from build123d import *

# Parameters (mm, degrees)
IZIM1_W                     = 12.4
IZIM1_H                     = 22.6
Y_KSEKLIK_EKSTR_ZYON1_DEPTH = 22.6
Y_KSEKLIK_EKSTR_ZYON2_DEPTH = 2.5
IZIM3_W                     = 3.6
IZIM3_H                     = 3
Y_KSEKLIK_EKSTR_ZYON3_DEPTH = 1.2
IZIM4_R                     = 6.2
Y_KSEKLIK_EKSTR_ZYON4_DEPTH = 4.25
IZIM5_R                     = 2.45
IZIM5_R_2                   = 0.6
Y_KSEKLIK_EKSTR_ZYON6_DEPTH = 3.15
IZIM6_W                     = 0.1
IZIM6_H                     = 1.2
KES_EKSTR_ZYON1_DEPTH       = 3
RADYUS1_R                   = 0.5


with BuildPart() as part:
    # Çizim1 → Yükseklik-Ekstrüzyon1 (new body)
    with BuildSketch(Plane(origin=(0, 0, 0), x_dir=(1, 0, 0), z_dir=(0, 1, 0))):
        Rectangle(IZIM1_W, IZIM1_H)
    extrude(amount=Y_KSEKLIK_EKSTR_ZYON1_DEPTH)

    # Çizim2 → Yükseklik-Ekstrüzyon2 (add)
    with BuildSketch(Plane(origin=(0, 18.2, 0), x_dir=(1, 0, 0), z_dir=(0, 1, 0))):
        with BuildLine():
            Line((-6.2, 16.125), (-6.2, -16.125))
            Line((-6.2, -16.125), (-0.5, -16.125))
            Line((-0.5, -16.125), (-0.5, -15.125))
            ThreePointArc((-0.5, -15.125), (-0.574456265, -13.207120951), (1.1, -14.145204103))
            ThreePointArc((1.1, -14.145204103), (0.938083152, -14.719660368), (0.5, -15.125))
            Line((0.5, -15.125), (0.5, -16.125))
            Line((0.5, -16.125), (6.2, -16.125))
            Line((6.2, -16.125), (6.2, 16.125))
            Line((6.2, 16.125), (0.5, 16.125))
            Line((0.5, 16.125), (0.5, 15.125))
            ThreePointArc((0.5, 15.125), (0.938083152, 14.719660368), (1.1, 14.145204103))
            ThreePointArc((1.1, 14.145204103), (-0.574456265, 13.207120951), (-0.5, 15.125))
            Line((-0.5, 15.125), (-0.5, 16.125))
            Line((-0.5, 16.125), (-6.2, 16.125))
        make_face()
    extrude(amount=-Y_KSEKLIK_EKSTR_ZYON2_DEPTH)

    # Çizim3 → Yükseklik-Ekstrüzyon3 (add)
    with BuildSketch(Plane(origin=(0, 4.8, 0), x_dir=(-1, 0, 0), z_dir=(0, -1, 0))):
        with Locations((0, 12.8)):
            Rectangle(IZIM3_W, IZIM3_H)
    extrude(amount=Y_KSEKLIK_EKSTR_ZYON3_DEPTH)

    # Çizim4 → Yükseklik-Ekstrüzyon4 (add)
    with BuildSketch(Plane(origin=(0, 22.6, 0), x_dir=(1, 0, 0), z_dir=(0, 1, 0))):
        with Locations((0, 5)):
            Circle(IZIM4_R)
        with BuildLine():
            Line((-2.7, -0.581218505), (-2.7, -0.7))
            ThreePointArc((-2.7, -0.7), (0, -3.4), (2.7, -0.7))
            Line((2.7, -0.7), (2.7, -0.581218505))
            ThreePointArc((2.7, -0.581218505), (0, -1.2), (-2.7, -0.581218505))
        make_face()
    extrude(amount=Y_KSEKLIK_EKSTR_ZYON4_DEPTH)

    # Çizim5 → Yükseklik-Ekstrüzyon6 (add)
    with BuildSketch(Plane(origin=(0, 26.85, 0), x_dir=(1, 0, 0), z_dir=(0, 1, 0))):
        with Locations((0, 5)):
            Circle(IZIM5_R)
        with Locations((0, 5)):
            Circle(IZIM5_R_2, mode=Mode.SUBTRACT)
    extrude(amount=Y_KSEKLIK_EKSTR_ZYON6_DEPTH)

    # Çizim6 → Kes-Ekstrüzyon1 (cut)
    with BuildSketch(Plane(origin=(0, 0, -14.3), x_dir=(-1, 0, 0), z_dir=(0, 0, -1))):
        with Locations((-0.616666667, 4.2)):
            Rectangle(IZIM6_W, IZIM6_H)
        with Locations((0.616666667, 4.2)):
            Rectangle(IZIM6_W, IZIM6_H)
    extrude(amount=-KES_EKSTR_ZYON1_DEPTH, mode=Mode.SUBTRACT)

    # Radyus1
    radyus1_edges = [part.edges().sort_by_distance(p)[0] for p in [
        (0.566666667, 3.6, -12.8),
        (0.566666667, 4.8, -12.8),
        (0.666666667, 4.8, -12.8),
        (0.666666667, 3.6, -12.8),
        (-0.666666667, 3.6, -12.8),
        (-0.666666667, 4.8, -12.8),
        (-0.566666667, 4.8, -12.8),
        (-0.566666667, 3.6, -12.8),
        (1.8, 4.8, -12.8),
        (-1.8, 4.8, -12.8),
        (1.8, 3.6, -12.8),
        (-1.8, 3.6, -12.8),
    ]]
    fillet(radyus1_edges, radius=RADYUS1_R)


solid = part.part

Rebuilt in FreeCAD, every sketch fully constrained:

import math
import FreeCAD as App
import Part
import Sketcher


def edges_at(feature, points):
    """Names of the edges that pass closest to the given points."""
    edges = feature.Shape.Edges
    near = lambda p: min(range(len(edges)), key=lambda i: edges[i].distToShape(Part.Vertex(*p))[0])
    return sorted({f"Edge{near(p) + 1}" for p in points})


def add_polygon(sketch, points):
    """Adds a closed chain of lines whose ends are joined by coincident constraints."""
    first, n = sketch.GeometryCount, len(points)
    for a, b in zip(points, points[1:] + points[:1]):
        sketch.addGeometry(Part.LineSegment(App.Vector(*a, 0), App.Vector(*b, 0)), False)
    for i in range(n):
        sketch.addConstraint(Sketcher.Constraint("Coincident", first + i, 2, first + (i + 1) % n, 1))

doc = App.newDocument("Part")
params = doc.addObject("Spreadsheet::Sheet", "Params")
for row, (alias, value) in enumerate([
    ("sketch1_width", "12.4 mm"),
    ("sketch1_height", "22.6 mm"),
    ("pad1_length", "22.6 mm"),
    ("sketch2_radius", "1.1 mm"),
    ("sketch2_height", "1 mm"),
    ("sketch2_width", "5.7 mm"),
    ("sketch2_height2", "32.25 mm"),
    ("pad2_length", "2.5 mm"),
    ("sketch3_height", "3 mm"),
    ("sketch3_width", "3.6 mm"),
    ("pad3_length", "1.2 mm"),
    ("sketch4_radius", "2.7 mm"),
    ("sketch4_radius2", "6.2 mm"),
    ("pad4_length", "4.25 mm"),
    ("sketch5_diameter", "4.9 mm"),
    ("sketch5_diameter2", "1.2 mm"),
    ("pad5_length", "3.15 mm"),
    ("sketch6_width", "0.1 mm"),
    ("sketch6_height", "1.2 mm"),
    ("pocket1_length", "3 mm"),
    ("fillet_radius", "0.5 mm"),
], start=1):
    params.set(f"A{row}", alias)
    params.set(f"B{row}", "=" + value)
    params.setAlias(f"B{row}", alias)

body = doc.addObject("PartDesign::Body", "Body")

# Sketch on XZ plane
sketch1 = doc.addObject("Sketcher::SketchObject", "Sketch")
body.addObject(sketch1)
sketch1.AttachmentSupport = (doc.XZ_Plane, [""])
sketch1.MapMode = "FlatFace"
add_polygon(sketch1, [(-6, -11), (-6, 11), (6, 11), (6, -11)])  # lines 0-3
sketch1.addConstraint([
    Sketcher.Constraint("Vertical", 0),
    Sketcher.Constraint("Horizontal", 1),
    Sketcher.Constraint("Vertical", 2),
    Sketcher.Constraint("Horizontal", 3),
    Sketcher.Constraint("Symmetric", 0, 2, 2, 2, -1, 1),
    Sketcher.Constraint("DistanceX", 1, 1, 1, 2, 12.4),
    Sketcher.Constraint("DistanceY", 0, 1, 0, 2, 22.6),
])
sketch1.setExpression("Constraints[9]", "Params.sketch1_width")
sketch1.setExpression("Constraints[10]", "Params.sketch1_height")
pad1 = doc.addObject("PartDesign::Pad", "Pad")
body.addObject(pad1)
pad1.Profile = sketch1
pad1.setExpression("Length", "Params.pad1_length")
pad1.Reversed = True

# Sketch on XZ plane
sketch2 = doc.addObject("Sketcher::SketchObject", "Sketch001")
body.addObject(sketch2)
sketch2.AttachmentSupport = (doc.XZ_Plane, [""])
sketch2.MapMode = "FlatFace"
sketch2.AttachmentOffset = App.Placement(App.Vector(0, 0, -18.2), App.Rotation())
sketch2.addGeometry([
    Part.LineSegment(App.Vector(-6.2, -16.1, 0), App.Vector(-6.2, 16.1, 0)),  # 0
    Part.LineSegment(App.Vector(-6.2, 16.1, 0), App.Vector(-0.5, 16.1, 0)),  # 1
    Part.LineSegment(App.Vector(-0.5, 16.1, 0), App.Vector(-0.5, 15.1, 0)),  # 2
    Part.ArcOfCircle(Part.Circle(App.Vector(0, 14.1, 0), App.Vector(0, 0, 1), 1.1), math.radians(117), math.radians(360)),  # 3
    Part.ArcOfCircle(Part.Circle(App.Vector(0, 14.1, 0), App.Vector(0, 0, 1), 1.1), math.radians(0), math.radians(63)),  # 4
    Part.LineSegment(App.Vector(0.5, 15.1, 0), App.Vector(0.5, 16.1, 0)),  # 5
    Part.LineSegment(App.Vector(0.5, 16.1, 0), App.Vector(6.2, 16.1, 0)),  # 6
    Part.LineSegment(App.Vector(6.2, 16.1, 0), App.Vector(6.2, -16.1, 0)),  # 7
    Part.LineSegment(App.Vector(6.2, -16.1, 0), App.Vector(0.5, -16.1, 0)),  # 8
    Part.LineSegment(App.Vector(0.5, -16.1, 0), App.Vector(0.5, -15.1, 0)),  # 9
    Part.ArcOfCircle(Part.Circle(App.Vector(0, -14.1, 0), App.Vector(0, 0, 1), 1.1), math.radians(-63), math.radians(0)),  # 10
    Part.ArcOfCircle(Part.Circle(App.Vector(0, -14.1, 0), App.Vector(0, 0, 1), 1.1), math.radians(0), math.radians(243)),  # 11
    Part.LineSegment(App.Vector(-0.5, -15.1, 0), App.Vector(-0.5, -16.1, 0)),  # 12
    Part.LineSegment(App.Vector(-0.5, -16.1, 0), App.Vector(-6.2, -16.1, 0)),  # 13
], False)
sketch2.addConstraint([
    Sketcher.Constraint("Coincident", 0, 2, 1, 1),
    Sketcher.Constraint("Coincident", 1, 2, 2, 1),
    Sketcher.Constraint("Coincident", 2, 2, 3, 1),
    Sketcher.Constraint("Tangent", 3, 2, 4, 1),
    Sketcher.Constraint("Coincident", 4, 2, 5, 1),
    Sketcher.Constraint("Coincident", 5, 2, 6, 1),
    Sketcher.Constraint("Coincident", 6, 2, 7, 1),
    Sketcher.Constraint("Coincident", 7, 2, 8, 1),
    Sketcher.Constraint("Coincident", 8, 2, 9, 1),
    Sketcher.Constraint("Coincident", 9, 2, 10, 1),
    Sketcher.Constraint("Tangent", 10, 2, 11, 1),
    Sketcher.Constraint("Coincident", 11, 2, 12, 1),
    Sketcher.Constraint("Coincident", 12, 2, 13, 1),
    Sketcher.Constraint("Coincident", 13, 2, 0, 1),
    Sketcher.Constraint("Vertical", 0),
    Sketcher.Constraint("Horizontal", 1),
    Sketcher.Constraint("Vertical", 2),
    Sketcher.Constraint("Vertical", 5),
    Sketcher.Constraint("Horizontal", 6),
    Sketcher.Constraint("Vertical", 7),
    Sketcher.Constraint("Horizontal", 8),
    Sketcher.Constraint("Vertical", 9),
    Sketcher.Constraint("Vertical", 12),
    Sketcher.Constraint("Horizontal", 13),
    Sketcher.Constraint("Equal", 3, 4),
    Sketcher.Constraint("Equal", 4, 10),
    Sketcher.Constraint("Equal", 10, 11),
    Sketcher.Constraint("Symmetric", 3, 3, 10, 3, -1, 1),
    Sketcher.Constraint("Symmetric", 0, 2, 7, 2, -1, 1),
    Sketcher.Constraint("Symmetric", 5, 2, 12, 2, -1, 1),
    Sketcher.Constraint("Symmetric", 2, 2, 4, 2, -2),
    Sketcher.Constraint("Symmetric", 8, 2, 12, 2, -2),
    Sketcher.Constraint("Horizontal", 4, 3, 3, 2),
    Sketcher.Constraint("Horizontal", 11, 3, 10, 2),
    Sketcher.Constraint("Radius", 3, 1.1),
    Sketcher.Constraint("DistanceY", 2, 2, 2, 1, 1.0),
    Sketcher.Constraint("DistanceX", 1, 1, 1, 2, 5.7),
    Sketcher.Constraint("DistanceX", 2, 2, 4, 2, 1.0),
    Sketcher.Constraint("DistanceY", 0, 1, 0, 2, 32.25),
])
sketch2.setExpression("Constraints[34]", "Params.sketch2_radius")
sketch2.setExpression("Constraints[35]", "Params.sketch2_height")
sketch2.setExpression("Constraints[36]", "Params.sketch2_width")
sketch2.setExpression("Constraints[38]", "Params.sketch2_height2")
pad2 = doc.addObject("PartDesign::Pad", "Pad001")
body.addObject(pad2)
pad2.Profile = sketch2
pad2.setExpression("Length", "Params.pad2_length")

# Sketch on XZ plane
sketch3 = doc.addObject("Sketcher::SketchObject", "Sketch002")
body.addObject(sketch3)
sketch3.AttachmentSupport = (doc.XZ_Plane, [""])
sketch3.MapMode = "FlatFace"
sketch3.AttachmentOffset = App.Placement(App.Vector(0, 0, -4.8), App.Rotation())
add_polygon(sketch3, [(1.8, -14.3), (1.8, -11.3), (-1.8, -11.3), (-1.8, -14.3)])  # lines 0-3
sketch3.addConstraint([
    Sketcher.Constraint("Vertical", 0),
    Sketcher.Constraint("Horizontal", 1),
    Sketcher.Constraint("Vertical", 2),
    Sketcher.Constraint("Horizontal", 3),
    Sketcher.Constraint("DistanceY", 0, 1, 0, 2, 3.0),
    Sketcher.Constraint("DistanceX", 1, 2, 1, 1, 3.6),
    Sketcher.Constraint("DistanceX", -1, 1, 0, 2, 1.8),
    Sketcher.Constraint("DistanceY", 0, 2, -1, 1, 11.3),
])
sketch3.setExpression("Constraints[8]", "Params.sketch3_height")
sketch3.setExpression("Constraints[9]", "Params.sketch3_width")
pad3 = doc.addObject("PartDesign::Pad", "Pad002")
body.addObject(pad3)
pad3.Profile = sketch3
pad3.setExpression("Length", "Params.pad3_length")

# Sketch on XZ plane
sketch4 = doc.addObject("Sketcher::SketchObject", "Sketch003")
body.addObject(sketch4)
sketch4.AttachmentSupport = (doc.XZ_Plane, [""])
sketch4.MapMode = "FlatFace"
sketch4.AttachmentOffset = App.Placement(App.Vector(0, 0, -22.6), App.Rotation())
sketch4.addGeometry([
    Part.LineSegment(App.Vector(-2.7, 0.58, 0), App.Vector(-2.7, 0.7, 0)),
    Part.ArcOfCircle(Part.Circle(App.Vector(0, 0.7, 0), App.Vector(0, 0, 1), 2.7), math.radians(0), math.radians(180)),
    Part.LineSegment(App.Vector(2.7, 0.7, 0), App.Vector(2.7, 0.58, 0)),
    Part.ArcOfCircle(Part.Circle(App.Vector(0, -5, 0), App.Vector(0, 0, 1), 6.2), math.radians(116), math.radians(424)),
], False)
sketch4.addConstraint([
    Sketcher.Constraint("Tangent", 0, 2, 1, 2),
    Sketcher.Constraint("Tangent", 1, 1, 2, 1),
    Sketcher.Constraint("Coincident", 2, 2, 3, 2),
    Sketcher.Constraint("Coincident", 3, 1, 0, 1),
    Sketcher.Constraint("Vertical", 0),
    Sketcher.Constraint("Vertical", 2),
    Sketcher.Constraint("Symmetric", 2, 2, 3, 1, -2),
    Sketcher.Constraint("Radius", 1, 2.7),
    Sketcher.Constraint("Radius", 3, 6.2),
    Sketcher.Constraint("DistanceY", 3, 3, -1, 1, 5.0),
    Sketcher.Constraint("DistanceY", -1, 1, 1, 3, 0.7),
])
sketch4.setExpression("Constraints[7]", "Params.sketch4_radius")
sketch4.setExpression("Constraints[8]", "Params.sketch4_radius2")
pad4 = doc.addObject("PartDesign::Pad", "Pad003")
body.addObject(pad4)
pad4.Profile = sketch4
pad4.setExpression("Length", "Params.pad4_length")
pad4.Reversed = True

# Sketch on XZ plane
sketch5 = doc.addObject("Sketcher::SketchObject", "Sketch004")
body.addObject(sketch5)
sketch5.AttachmentSupport = (doc.XZ_Plane, [""])
sketch5.MapMode = "FlatFace"
sketch5.AttachmentOffset = App.Placement(App.Vector(0, 0, -26.85), App.Rotation())
sketch5.addGeometry([
    Part.Circle(App.Vector(0, -5, 0), App.Vector(0, 0, 1), 2.5),
    Part.Circle(App.Vector(0, -5, 0), App.Vector(0, 0, 1), 0.6),
], False)
sketch5.addConstraint([
    Sketcher.Constraint("Coincident", 1, 3, 0, 3),
    Sketcher.Constraint("PointOnObject", 0, 3, -2),
    Sketcher.Constraint("Diameter", 0, 4.9),
    Sketcher.Constraint("Diameter", 1, 1.2),
    Sketcher.Constraint("DistanceY", 0, 3, -1, 1, 5.0),
])
sketch5.setExpression("Constraints[2]", "Params.sketch5_diameter")
sketch5.setExpression("Constraints[3]", "Params.sketch5_diameter2")
pad5 = doc.addObject("PartDesign::Pad", "Pad004")
body.addObject(pad5)
pad5.Profile = sketch5
pad5.setExpression("Length", "Params.pad5_length")
pad5.Reversed = True

# Sketch on XY plane
sketch6 = doc.addObject("Sketcher::SketchObject", "Sketch005")
body.addObject(sketch6)
sketch6.AttachmentSupport = (doc.XY_Plane, [""])
sketch6.MapMode = "FlatFace"
sketch6.AttachmentOffset = App.Placement(App.Vector(0, 0, -14.3), App.Rotation())
add_polygon(sketch6, [(0.67, 4.8), (0.67, 3.6), (0.57, 3.6), (0.57, 4.8)])  # lines 0-3
add_polygon(sketch6, [(-0.57, 4.8), (-0.57, 3.6), (-0.67, 3.6), (-0.67, 4.8)])  # lines 4-7
sketch6.addConstraint([
    Sketcher.Constraint("Vertical", 0),
    Sketcher.Constraint("Horizontal", 1),
    Sketcher.Constraint("Vertical", 2),
    Sketcher.Constraint("Horizontal", 3),
    Sketcher.Constraint("Vertical", 4),
    Sketcher.Constraint("Horizontal", 5),
    Sketcher.Constraint("Vertical", 6),
    Sketcher.Constraint("Horizontal", 7),
    Sketcher.Constraint("Symmetric", 1, 2, 4, 2, -2),
    Sketcher.Constraint("Symmetric", 3, 2, 6, 2, -2),
    Sketcher.Constraint("DistanceX", 1, 2, 1, 1, 0.1),
    Sketcher.Constraint("DistanceY", 0, 2, 0, 1, 1.2),
    Sketcher.Constraint("DistanceY", -1, 1, 0, 2, 3.6),
    Sketcher.Constraint("DistanceX", -1, 1, 0, 2, 0.666667),
])
sketch6.setExpression("Constraints[18]", "Params.sketch6_width")
sketch6.setExpression("Constraints[19]", "Params.sketch6_height")
pocket1 = doc.addObject("PartDesign::Pocket", "Pocket")
body.addObject(pocket1)
pocket1.Profile = sketch6
pocket1.setExpression("Length", "Params.pocket1_length")
pocket1.Reversed = True
doc.recompute()

fillet = doc.addObject("PartDesign::Fillet", "Fillet")
body.addObject(fillet)
fillet.Base = (pocket1, edges_at(pocket1, [
    (0.567, 3.6, -12.8),
    (0.567, 4.8, -12.8),
    (0.667, 4.8, -12.8),
    (0.667, 3.6, -12.8),
    (-0.667, 3.6, -12.8),
    (-0.667, 4.8, -12.8),
    (-0.567, 4.8, -12.8),
    (-0.567, 3.6, -12.8),
    (1.8, 4.8, -12.8),
    (-1.8, 4.8, -12.8),
    (1.8, 3.6, -12.8),
    (-1.8, 3.6, -12.8),
]))
fillet.setExpression("Radius", "Params.fillet_radius")

doc.recompute()
